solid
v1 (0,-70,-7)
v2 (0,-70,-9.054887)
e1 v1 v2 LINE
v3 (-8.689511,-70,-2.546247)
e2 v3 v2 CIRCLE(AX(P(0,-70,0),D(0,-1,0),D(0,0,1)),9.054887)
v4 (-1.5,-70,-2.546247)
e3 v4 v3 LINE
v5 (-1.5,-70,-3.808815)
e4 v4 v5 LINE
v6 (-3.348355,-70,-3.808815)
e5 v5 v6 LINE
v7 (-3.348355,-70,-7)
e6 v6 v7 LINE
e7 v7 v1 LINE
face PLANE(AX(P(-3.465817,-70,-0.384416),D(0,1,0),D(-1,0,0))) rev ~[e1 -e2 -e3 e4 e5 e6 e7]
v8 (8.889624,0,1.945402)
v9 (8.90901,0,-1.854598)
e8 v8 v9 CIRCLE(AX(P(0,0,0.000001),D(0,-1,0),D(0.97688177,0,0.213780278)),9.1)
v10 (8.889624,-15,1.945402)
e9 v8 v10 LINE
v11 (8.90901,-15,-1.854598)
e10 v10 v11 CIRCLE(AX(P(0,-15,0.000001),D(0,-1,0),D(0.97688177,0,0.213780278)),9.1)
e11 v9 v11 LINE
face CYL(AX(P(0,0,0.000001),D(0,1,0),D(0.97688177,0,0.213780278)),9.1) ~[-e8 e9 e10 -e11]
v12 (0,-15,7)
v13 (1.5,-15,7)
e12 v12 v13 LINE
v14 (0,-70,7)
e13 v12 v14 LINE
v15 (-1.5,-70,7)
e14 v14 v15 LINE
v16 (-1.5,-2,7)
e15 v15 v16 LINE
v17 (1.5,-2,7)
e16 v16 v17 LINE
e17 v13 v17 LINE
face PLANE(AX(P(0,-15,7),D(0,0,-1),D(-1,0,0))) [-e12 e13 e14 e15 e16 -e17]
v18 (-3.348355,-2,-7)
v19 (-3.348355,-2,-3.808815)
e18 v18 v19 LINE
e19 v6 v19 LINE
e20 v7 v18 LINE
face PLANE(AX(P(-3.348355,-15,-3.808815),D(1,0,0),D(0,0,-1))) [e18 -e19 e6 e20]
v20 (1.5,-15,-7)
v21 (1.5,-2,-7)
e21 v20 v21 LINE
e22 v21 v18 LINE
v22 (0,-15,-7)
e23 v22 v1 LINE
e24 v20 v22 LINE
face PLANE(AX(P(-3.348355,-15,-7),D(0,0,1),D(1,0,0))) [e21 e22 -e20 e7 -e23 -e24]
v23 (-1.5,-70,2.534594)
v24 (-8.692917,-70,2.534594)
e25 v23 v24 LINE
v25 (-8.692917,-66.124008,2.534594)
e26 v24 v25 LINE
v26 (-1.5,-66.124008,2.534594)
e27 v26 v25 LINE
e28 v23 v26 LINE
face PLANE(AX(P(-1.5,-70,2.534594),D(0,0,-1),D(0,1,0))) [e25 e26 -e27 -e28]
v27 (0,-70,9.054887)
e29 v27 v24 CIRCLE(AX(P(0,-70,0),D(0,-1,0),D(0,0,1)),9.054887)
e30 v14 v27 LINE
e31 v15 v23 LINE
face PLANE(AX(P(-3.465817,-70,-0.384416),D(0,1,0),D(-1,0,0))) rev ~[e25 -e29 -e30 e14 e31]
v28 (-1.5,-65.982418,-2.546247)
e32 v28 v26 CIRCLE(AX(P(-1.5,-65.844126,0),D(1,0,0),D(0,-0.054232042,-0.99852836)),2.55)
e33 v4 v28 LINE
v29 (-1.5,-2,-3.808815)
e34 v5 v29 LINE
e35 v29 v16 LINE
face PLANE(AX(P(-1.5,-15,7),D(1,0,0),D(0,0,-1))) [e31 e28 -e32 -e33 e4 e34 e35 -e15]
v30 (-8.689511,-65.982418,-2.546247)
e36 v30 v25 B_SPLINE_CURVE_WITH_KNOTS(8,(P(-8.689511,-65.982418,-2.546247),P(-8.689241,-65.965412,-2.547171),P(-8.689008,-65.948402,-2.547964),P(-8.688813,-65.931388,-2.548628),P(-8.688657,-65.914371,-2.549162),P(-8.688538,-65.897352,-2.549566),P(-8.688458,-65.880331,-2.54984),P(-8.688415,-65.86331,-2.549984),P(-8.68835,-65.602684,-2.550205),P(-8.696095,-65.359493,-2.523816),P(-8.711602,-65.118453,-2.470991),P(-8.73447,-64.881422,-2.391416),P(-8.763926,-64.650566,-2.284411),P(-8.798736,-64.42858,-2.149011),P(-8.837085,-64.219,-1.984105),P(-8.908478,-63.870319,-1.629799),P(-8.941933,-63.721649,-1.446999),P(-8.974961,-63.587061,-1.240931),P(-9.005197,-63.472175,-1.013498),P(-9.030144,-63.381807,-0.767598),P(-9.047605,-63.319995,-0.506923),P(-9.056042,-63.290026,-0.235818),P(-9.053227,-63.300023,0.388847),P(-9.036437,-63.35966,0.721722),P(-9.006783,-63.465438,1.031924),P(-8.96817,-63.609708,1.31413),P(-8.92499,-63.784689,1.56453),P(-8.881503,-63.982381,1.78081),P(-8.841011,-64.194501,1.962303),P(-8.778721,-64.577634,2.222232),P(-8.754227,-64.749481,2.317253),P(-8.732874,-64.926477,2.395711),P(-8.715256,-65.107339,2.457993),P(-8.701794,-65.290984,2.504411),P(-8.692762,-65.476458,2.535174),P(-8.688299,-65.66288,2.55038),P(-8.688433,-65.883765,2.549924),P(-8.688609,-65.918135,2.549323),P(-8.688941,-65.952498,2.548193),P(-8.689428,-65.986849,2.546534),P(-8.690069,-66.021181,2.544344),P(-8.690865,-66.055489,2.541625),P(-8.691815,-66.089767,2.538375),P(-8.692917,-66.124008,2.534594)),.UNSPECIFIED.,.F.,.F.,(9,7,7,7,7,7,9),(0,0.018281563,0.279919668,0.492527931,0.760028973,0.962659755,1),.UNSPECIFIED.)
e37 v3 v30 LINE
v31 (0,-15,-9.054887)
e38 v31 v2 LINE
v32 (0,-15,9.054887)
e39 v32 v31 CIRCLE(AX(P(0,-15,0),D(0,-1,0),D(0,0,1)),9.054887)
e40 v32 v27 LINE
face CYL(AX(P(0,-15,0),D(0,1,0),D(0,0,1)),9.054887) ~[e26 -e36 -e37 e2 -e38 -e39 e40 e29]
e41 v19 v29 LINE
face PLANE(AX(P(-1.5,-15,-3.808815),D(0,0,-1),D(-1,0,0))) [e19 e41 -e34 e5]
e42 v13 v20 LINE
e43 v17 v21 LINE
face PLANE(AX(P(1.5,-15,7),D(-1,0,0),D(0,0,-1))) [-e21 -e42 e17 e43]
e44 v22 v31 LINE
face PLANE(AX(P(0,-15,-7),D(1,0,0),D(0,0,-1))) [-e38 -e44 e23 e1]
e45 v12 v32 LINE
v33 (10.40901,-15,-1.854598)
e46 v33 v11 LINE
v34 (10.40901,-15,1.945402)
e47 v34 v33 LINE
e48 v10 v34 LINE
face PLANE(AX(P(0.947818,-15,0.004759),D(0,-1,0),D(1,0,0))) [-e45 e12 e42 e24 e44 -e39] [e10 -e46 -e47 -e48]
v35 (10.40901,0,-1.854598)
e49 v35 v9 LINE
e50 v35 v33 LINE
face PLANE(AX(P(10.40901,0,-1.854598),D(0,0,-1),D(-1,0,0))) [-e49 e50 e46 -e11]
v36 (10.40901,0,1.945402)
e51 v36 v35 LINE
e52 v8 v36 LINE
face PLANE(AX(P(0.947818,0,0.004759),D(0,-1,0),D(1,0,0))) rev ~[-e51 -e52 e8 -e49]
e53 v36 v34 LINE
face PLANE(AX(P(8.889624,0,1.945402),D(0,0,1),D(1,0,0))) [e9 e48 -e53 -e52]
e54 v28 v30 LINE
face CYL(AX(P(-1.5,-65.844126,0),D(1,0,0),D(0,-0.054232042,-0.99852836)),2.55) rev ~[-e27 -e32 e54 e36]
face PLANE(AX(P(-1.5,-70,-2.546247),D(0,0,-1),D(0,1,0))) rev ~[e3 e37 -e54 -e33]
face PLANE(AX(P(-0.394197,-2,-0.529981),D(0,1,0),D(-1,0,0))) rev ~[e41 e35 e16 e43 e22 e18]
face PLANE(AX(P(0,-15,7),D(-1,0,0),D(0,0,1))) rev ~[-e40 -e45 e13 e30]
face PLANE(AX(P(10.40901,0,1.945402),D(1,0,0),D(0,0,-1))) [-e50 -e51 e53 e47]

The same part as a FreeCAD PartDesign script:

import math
import FreeCAD as App
import Part
import Sketcher
Q = App.Units.Quantity

doc = App.newDocument("Part")
params = doc.addObject("Spreadsheet::Sheet", "Params")
for row, (alias, value) in enumerate([
    ("sketch1_radius", "9.1 mm"),
    ("sketch1_width", "1.5 mm"),
    ("sketch1_height", "3.8 mm"),
    ("pad1_length", "15 mm"),
    ("sketch2_width", "3 mm"),
    ("sketch2_height", "14 mm"),
    ("pocket1_length", "13 mm"),
    ("sketch3_width", "1.5 mm"),
    ("pad2_length", "55 mm"),
    ("sketch4_radius", "2.55 mm"),
], start=1):
    params.set(f"A{row}", alias)
    params.set(f"B{row}", "=" + value)
    params.setAlias(f"B{row}", alias)

body = doc.addObject("PartDesign::Body", "Body")

# Sketch on XZ plane
sketch1 = body.newObject("Sketcher::SketchObject", "Sketch")
sketch1.AttachmentSupport = (doc.getObject("XZ_Plane"), [""])
sketch1.MapMode = "FlatFace"
sketch1.addGeometry([
    Part.ArcOfCircle(Part.Circle(App.Vector(0, 0, 0), App.Vector(0, 0, 1), 9.1), math.radians(12), math.radians(348)),
    Part.LineSegment(App.Vector(8.9, -1.9, 0), App.Vector(10.4, -1.9, 0)),
    Part.LineSegment(App.Vector(10.4, -1.9, 0), App.Vector(10.4, 1.9, 0)),
    Part.LineSegment(App.Vector(10.4, 1.9, 0), App.Vector(8.9, 1.9, 0)),
], False)
sketch1.addConstraint([
    Sketcher.Constraint("Coincident", 0, 2, 1, 1),
    Sketcher.Constraint("Coincident", 1, 2, 2, 1),
    Sketcher.Constraint("Coincident", 2, 2, 3, 1),
    Sketcher.Constraint("Coincident", 3, 2, 0, 1),
    Sketcher.Constraint("Horizontal", 1),
    Sketcher.Constraint("Vertical", 2),
    Sketcher.Constraint("Horizontal", 3),
    Sketcher.Constraint("Coincident", 0, 3, -1, 1),
    Sketcher.Constraint("Radius", 0, Q("9.1 mm")),
    Sketcher.Constraint("DistanceX", 1, 1, 1, 2, Q("1.5 mm")),
    Sketcher.Constraint("DistanceY", 2, 1, 2, 2, Q("3.8 mm")),
    Sketcher.Constraint("DistanceY", 0, 2, -1, 1, Q("1.854598 mm")),
])
sketch1.setExpression("Constraints[8]", "Params.sketch1_radius")
sketch1.setExpression("Constraints[9]", "Params.sketch1_width")
sketch1.setExpression("Constraints[10]", "Params.sketch1_height")
pad1 = body.newObject("PartDesign::Pad", "Pad")
pad1.Profile = sketch1
pad1.setExpression("Length", "Params.pad1_length")

# Sketch on XZ plane
sketch2 = body.newObject("Sketcher::SketchObject", "Sketch001")
sketch2.AttachmentSupport = (doc.getObject("XZ_Plane"), [""])
sketch2.MapMode = "FlatFace"
sketch2.AttachmentOffset = App.Placement(App.Vector(0, 0, 15), App.Rotation())
sketch2.addGeometry([
    Part.LineSegment(App.Vector(1.5, 7, 0), App.Vector(-1.5, 7, 0)),  # 0
    Part.LineSegment(App.Vector(-1.5, 7, 0), App.Vector(-1.5, -3.8, 0)),  # 1
    Part.LineSegment(App.Vector(-1.5, -3.8, 0), App.Vector(-3.3, -3.8, 0)),  # 2
    Part.LineSegment(App.Vector(-3.3, -3.8, 0), App.Vector(-3.3, -7, 0)),  # 3
    Part.LineSegment(App.Vector(-3.3, -7, 0), App.Vector(1.5, -7, 0)),  # 4
    Part.LineSegment(App.Vector(1.5, -7, 0), App.Vector(1.5, 7, 0)),  # 5
], False)
sketch2.addConstraint([
    Sketcher.Constraint("Coincident", 0, 2, 1, 1),
    Sketcher.Constraint("Coincident", 1, 2, 2, 1),
    Sketcher.Constraint("Coincident", 2, 2, 3, 1),
    Sketcher.Constraint("Coincident", 3, 2, 4, 1),
    Sketcher.Constraint("Coincident", 4, 2, 5, 1),
    Sketcher.Constraint("Coincident", 5, 2, 0, 1),
    Sketcher.Constraint("Horizontal", 0),
    Sketcher.Constraint("Vertical", 1),
    Sketcher.Constraint("Horizontal", 2),
    Sketcher.Constraint("Vertical", 3),
    Sketcher.Constraint("Horizontal", 4),
    Sketcher.Constraint("Vertical", 5),
    Sketcher.Constraint("Symmetric", 0, 2, 4, 2, -1, 1),
    Sketcher.Constraint("DistanceX", 0, 2, 0, 1, Q("3 mm")),
    Sketcher.Constraint("DistanceY", 5, 1, 5, 2, Q("14 mm")),
    Sketcher.Constraint("DistanceX", 2, 2, 2, 1, Q("1.848355 mm")),
    Sketcher.Constraint("DistanceY", 1, 2, 1, 1, Q("10.808815 mm")),
])
sketch2.setExpression("Constraints[13]", "Params.sketch2_width")
sketch2.setExpression("Constraints[14]", "Params.sketch2_height")
pocket1 = body.newObject("PartDesign::Pocket", "Pocket")
pocket1.Profile = sketch2
pocket1.setExpression("Length", "Params.pocket1_length")

# Sketch on XZ plane
sketch3 = body.newObject("Sketcher::SketchObject", "Sketch002")
sketch3.AttachmentSupport = (doc.getObject("XZ_Plane"), [""])
sketch3.MapMode = "FlatFace"
sketch3.AttachmentOffset = App.Placement(App.Vector(0, 0, 15), App.Rotation())
sketch3.addGeometry([
    Part.LineSegment(App.Vector(-1.5, 7, 0), App.Vector(0, 7, 0)),  # 0
    Part.LineSegment(App.Vector(0, 7, 0), App.Vector(0, 9.1, 0)),  # 1
    Part.ArcOfCircle(Part.Circle(App.Vector(0, 0, 0), App.Vector(0, 0, 1), 9.1), math.radians(90), math.radians(270)),  # 2
    Part.LineSegment(App.Vector(0, -9.1, 0), App.Vector(0, -7, 0)),  # 3
    Part.LineSegment(App.Vector(0, -7, 0), App.Vector(-3.3, -7, 0)),  # 4
    Part.LineSegment(App.Vector(-3.3, -7, 0), App.Vector(-3.3, -3.8, 0)),  # 5
    Part.LineSegment(App.Vector(-3.3, -3.8, 0), App.Vector(-1.5, -3.8, 0)),  # 6
    Part.LineSegment(App.Vector(-1.5, -3.8, 0), App.Vector(-1.5, 7, 0)),  # 7
], False)
sketch3.addConstraint([
    Sketcher.Constraint("Coincident", 0, 2, 1, 1),
    Sketcher.Constraint("Coincident", 1, 2, 2, 1),
    Sketcher.Constraint("Coincident", 2, 2, 3, 1),
    Sketcher.Constraint("Coincident", 3, 2, 4, 1),
    Sketcher.Constraint("Coincident", 4, 2, 5, 1),
    Sketcher.Constraint("Coincident", 5, 2, 6, 1),
    Sketcher.Constraint("Coincident", 6, 2, 7, 1),
    Sketcher.Constraint("Coincident", 7, 2, 0, 1),
    Sketcher.Constraint("Horizontal", 0),
    Sketcher.Constraint("Vertical", 1),
    Sketcher.Constraint("Vertical", 3),
    Sketcher.Constraint("Horizontal", 4),
    Sketcher.Constraint("Vertical", 5),
    Sketcher.Constraint("Horizontal", 6),
    Sketcher.Constraint("Vertical", 7),
    Sketcher.Constraint("Coincident", 2, 3, -1, 1),
    Sketcher.Constraint("Symmetric", 0, 2, 3, 2, -1, 1),
    Sketcher.Constraint("PointOnObject", 0, 2, -2),
    Sketcher.Constraint("DistanceX", 0, 1, 0, 2, Q("1.5 mm")),
    Sketcher.Constraint("DistanceY", -1, 1, 0, 2, Q("7 mm")),
    Sketcher.Constraint("Radius", 2, Q("9.054887 mm")),
    Sketcher.Constraint("DistanceX", 4, 2, 4, 1, Q("3.348355 mm")),
    Sketcher.Constraint("DistanceY", 5, 1, 5, 2, Q("3.191185 mm")),
])
sketch3.setExpression("Constraints[18]", "Params.sketch3_width")
pad2 = body.newObject("PartDesign::Pad", "Pad001")
pad2.Profile = sketch3
pad2.setExpression("Length", "Params.pad2_length")

# Sketch on YZ plane
sketch4 = body.newObject("Sketcher::SketchObject", "Sketch003")
sketch4.AttachmentSupport = (doc.getObject("YZ_Plane"), [""])
sketch4.MapMode = "FlatFace"
sketch4.AttachmentOffset = App.Placement(App.Vector(0, 0, -1.5), App.Rotation())
sketch4.addGeometry([
    Part.LineSegment(App.Vector(-70, -2.5, 0), App.Vector(-66, -2.5, 0)),
    Part.ArcOfCircle(Part.Circle(App.Vector(-65.8, 0, 0), App.Vector(0, 0, 1), 2.5), math.radians(-93), math.radians(96)),
    Part.LineSegment(App.Vector(-66.1, 2.5, 0), App.Vector(-70, 2.5, 0)),
    Part.LineSegment(App.Vector(-70, 2.5, 0), App.Vector(-70, -2.5, 0)),
], False)
sketch4.addConstraint([
    Sketcher.Constraint("Coincident", 0, 2, 1, 1),
    Sketcher.Constraint("Coincident", 1, 2, 2, 1),
    Sketcher.Constraint("Coincident", 2, 2, 3, 1),
    Sketcher.Constraint("Coincident", 3, 2, 0, 1),
    Sketcher.Constraint("Horizontal", 0),
    Sketcher.Constraint("Horizontal", 2),
    Sketcher.Constraint("Vertical", 3),
    Sketcher.Constraint("PointOnObject", 1, 3, -1),
    Sketcher.Constraint("Radius", 1, Q("2.55 mm")),
    Sketcher.Constraint("DistanceX", 2, 2, -1, 1, Q("70 mm")),
    Sketcher.Constraint("DistanceX", 2, 2, 2, 1, Q("3.875992 mm")),
    Sketcher.Constraint("DistanceY", 3, 2, 3, 1, Q("5.080841 mm")),
    Sketcher.Constraint("DistanceX", 0, 1, 0, 2, Q("4.017582 mm")),
])
sketch4.setExpression("Constraints[8]", "Params.sketch4_radius")
pocket2 = body.newObject("PartDesign::Pocket", "Pocket001")
pocket2.Profile = sketch4
pocket2.Type = "ThroughAll"

doc.recompute()
